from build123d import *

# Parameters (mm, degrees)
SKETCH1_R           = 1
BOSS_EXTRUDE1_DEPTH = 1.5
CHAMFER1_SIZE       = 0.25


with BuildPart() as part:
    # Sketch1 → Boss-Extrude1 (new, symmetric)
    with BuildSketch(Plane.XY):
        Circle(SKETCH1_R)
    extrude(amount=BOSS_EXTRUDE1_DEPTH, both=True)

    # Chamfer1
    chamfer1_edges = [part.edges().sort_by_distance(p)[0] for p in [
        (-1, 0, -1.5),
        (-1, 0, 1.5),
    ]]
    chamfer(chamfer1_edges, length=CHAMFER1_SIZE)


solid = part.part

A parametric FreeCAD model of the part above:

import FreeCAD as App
import Part
import Sketcher
from FreeCAD import Vector


def edges_at(feature, points):
    """Names of the edges that pass closest to the given points."""
    edges = feature.Shape.Edges
    near = lambda p: min(range(len(edges)), key=lambda i: edges[i].distToShape(Part.Vertex(*p))[0])
    return sorted({f"Edge{near(p) + 1}" for p in points})

doc = App.newDocument("Part")
body = doc.addObject("PartDesign::Body", "Body")

sketch1 = body.newObject("Sketcher::SketchObject", "Sketch")
sketch1.AttachmentSupport = (doc.getObject("XY_Plane"), [""])
sketch1.MapMode = "FlatFace"
sketch1.addGeometry(Part.Circle(Vector(0, 0, 0), Vector(0, 0, 1), 1), False)
sketch1.addConstraint(Sketcher.Constraint("Coincident", 0, 3, -1, 1))
sketch1.addConstraint(Sketcher.Constraint("Diameter", 0, 2.0))
pad1 = body.newObject("PartDesign::Pad", "Pad")
pad1.Profile = sketch1
pad1.Length = 3
pad1.Midplane = True
doc.recompute()

chamfer = body.newObject("PartDesign::Chamfer", "Chamfer")
chamfer.Base = (pad1, edges_at(pad1, [(-1, 0, -1.5), (-1, 0, 1.5)]))
chamfer.Size = 0.25

doc.recompute()
